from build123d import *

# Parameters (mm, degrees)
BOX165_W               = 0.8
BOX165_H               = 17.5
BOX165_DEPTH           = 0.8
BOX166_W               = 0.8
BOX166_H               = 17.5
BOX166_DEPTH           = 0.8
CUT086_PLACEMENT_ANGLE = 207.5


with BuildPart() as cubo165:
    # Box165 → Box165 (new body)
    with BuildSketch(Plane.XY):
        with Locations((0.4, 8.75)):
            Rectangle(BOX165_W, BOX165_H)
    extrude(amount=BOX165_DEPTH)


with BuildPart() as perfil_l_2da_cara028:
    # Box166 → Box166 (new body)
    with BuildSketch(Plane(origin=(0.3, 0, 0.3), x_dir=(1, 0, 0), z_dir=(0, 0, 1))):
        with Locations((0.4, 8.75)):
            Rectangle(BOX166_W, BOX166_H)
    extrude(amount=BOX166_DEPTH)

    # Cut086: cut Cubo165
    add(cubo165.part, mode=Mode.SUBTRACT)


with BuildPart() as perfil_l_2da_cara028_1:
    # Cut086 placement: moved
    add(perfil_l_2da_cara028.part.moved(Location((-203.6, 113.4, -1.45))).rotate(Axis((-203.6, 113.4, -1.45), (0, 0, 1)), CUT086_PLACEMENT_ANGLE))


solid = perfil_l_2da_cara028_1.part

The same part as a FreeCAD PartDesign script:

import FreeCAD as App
import Part
import Sketcher
from FreeCAD import Vector

doc = App.newDocument("Part")
body = doc.addObject("PartDesign::Body", "Body")

sketch1 = doc.addObject("Sketcher::SketchObject", "Sketch")
body.addObject(sketch1)
sketch1.AttachmentSupport = (doc.XY_Plane, [""])
sketch1.MapMode = "FlatFace"
sketch1.addGeometry([
    Part.LineSegment(Vector(0, 17.5, 0), Vector(0, 0, 0)),
    Part.LineSegment(Vector(0, 0, 0), Vector(0.8, 0, 0)),
    Part.LineSegment(Vector(0.8, 0, 0), Vector(0.8, 17.5, 0)),
    Part.LineSegment(Vector(0.8, 17.5, 0), Vector(0, 17.5, 0)),
], False)
sketch1.addConstraint([
    Sketcher.Constraint("Coincident", 0, 2, 1, 1),
    Sketcher.Constraint("Coincident", 1, 2, 2, 1),
    Sketcher.Constraint("Coincident", 2, 2, 3, 1),
    Sketcher.Constraint("Coincident", 3, 2, 0, 1),
    Sketcher.Constraint("Vertical", 0),
    Sketcher.Constraint("Horizontal", 1),
    Sketcher.Constraint("Vertical", 2),
    Sketcher.Constraint("Horizontal", 3),
    Sketcher.Constraint("Coincident", 0, 2, -1, 1),
    Sketcher.Constraint("DistanceX", 1, 1, 1, 2, 0.8),
    Sketcher.Constraint("DistanceY", 0, 2, 0, 1, 17.5),
])
pad1 = doc.addObject("PartDesign::Pad", "Pad")
body.addObject(pad1)
pad1.Profile = sketch1
pad1.Length = 0.8
body2 = doc.addObject("PartDesign::Body", "Body001")

sketch2 = doc.addObject("Sketcher::SketchObject", "Sketch001")
body2.addObject(sketch2)
sketch2.AttachmentSupport = (doc.getObject("XY_Plane001"), [""])
sketch2.MapMode = "FlatFace"
sketch2.AttachmentOffset = App.Placement(Vector(0, 0, 0.3), App.Rotation())
sketch2.addGeometry([
    Part.LineSegment(Vector(0.3, 17.5, 0), Vector(0.3, 0, 0)),
    Part.LineSegment(Vector(0.3, 0, 0), Vector(1.1, 0, 0)),
    Part.LineSegment(Vector(1.1, 0, 0), Vector(1.1, 17.5, 0)),
    Part.LineSegment(Vector(1.1, 17.5, 0), Vector(0.3, 17.5, 0)),
], False)
sketch2.addConstraint([
    Sketcher.Constraint("Coincident", 0, 2, 1, 1),
    Sketcher.Constraint("Coincident", 1, 2, 2, 1),
    Sketcher.Constraint("Coincident", 2, 2, 3, 1),
    Sketcher.Constraint("Coincident", 3, 2, 0, 1),
    Sketcher.Constraint("Vertical", 0),
    Sketcher.Constraint("Horizontal", 1),
    Sketcher.Constraint("Vertical", 2),
    Sketcher.Constraint("Horizontal", 3),
    Sketcher.Constraint("PointOnObject", 0, 2, -1),
    Sketcher.Constraint("DistanceX", 1, 1, 1, 2, 0.8),
    Sketcher.Constraint("DistanceY", 0, 2, 0, 1, 17.5),
    Sketcher.Constraint("DistanceX", -1, 1, 0, 2, 0.3),
])
pad2 = doc.addObject("PartDesign::Pad", "Pad001")
body2.addObject(pad2)
pad2.Profile = sketch2
pad2.Length = 0.8
doc.recompute()

boolean = doc.addObject("PartDesign::Boolean", "Boolean")
body2.addObject(boolean)
boolean.Type = "Cut"
boolean.addObjects([body])
body3 = doc.addObject("PartDesign::Body", "Body002")
doc.recompute()

body2.Placement = App.Placement(Vector(-203.6, 113.4, -1.45), App.Rotation(Vector(0, 0, 1), 207.5))
boolean2 = doc.addObject("PartDesign::Boolean", "Boolean001")
body3.addObject(boolean2)
boolean2.Type = "Fuse"
boolean2.addObjects([body2])

doc.recompute()
